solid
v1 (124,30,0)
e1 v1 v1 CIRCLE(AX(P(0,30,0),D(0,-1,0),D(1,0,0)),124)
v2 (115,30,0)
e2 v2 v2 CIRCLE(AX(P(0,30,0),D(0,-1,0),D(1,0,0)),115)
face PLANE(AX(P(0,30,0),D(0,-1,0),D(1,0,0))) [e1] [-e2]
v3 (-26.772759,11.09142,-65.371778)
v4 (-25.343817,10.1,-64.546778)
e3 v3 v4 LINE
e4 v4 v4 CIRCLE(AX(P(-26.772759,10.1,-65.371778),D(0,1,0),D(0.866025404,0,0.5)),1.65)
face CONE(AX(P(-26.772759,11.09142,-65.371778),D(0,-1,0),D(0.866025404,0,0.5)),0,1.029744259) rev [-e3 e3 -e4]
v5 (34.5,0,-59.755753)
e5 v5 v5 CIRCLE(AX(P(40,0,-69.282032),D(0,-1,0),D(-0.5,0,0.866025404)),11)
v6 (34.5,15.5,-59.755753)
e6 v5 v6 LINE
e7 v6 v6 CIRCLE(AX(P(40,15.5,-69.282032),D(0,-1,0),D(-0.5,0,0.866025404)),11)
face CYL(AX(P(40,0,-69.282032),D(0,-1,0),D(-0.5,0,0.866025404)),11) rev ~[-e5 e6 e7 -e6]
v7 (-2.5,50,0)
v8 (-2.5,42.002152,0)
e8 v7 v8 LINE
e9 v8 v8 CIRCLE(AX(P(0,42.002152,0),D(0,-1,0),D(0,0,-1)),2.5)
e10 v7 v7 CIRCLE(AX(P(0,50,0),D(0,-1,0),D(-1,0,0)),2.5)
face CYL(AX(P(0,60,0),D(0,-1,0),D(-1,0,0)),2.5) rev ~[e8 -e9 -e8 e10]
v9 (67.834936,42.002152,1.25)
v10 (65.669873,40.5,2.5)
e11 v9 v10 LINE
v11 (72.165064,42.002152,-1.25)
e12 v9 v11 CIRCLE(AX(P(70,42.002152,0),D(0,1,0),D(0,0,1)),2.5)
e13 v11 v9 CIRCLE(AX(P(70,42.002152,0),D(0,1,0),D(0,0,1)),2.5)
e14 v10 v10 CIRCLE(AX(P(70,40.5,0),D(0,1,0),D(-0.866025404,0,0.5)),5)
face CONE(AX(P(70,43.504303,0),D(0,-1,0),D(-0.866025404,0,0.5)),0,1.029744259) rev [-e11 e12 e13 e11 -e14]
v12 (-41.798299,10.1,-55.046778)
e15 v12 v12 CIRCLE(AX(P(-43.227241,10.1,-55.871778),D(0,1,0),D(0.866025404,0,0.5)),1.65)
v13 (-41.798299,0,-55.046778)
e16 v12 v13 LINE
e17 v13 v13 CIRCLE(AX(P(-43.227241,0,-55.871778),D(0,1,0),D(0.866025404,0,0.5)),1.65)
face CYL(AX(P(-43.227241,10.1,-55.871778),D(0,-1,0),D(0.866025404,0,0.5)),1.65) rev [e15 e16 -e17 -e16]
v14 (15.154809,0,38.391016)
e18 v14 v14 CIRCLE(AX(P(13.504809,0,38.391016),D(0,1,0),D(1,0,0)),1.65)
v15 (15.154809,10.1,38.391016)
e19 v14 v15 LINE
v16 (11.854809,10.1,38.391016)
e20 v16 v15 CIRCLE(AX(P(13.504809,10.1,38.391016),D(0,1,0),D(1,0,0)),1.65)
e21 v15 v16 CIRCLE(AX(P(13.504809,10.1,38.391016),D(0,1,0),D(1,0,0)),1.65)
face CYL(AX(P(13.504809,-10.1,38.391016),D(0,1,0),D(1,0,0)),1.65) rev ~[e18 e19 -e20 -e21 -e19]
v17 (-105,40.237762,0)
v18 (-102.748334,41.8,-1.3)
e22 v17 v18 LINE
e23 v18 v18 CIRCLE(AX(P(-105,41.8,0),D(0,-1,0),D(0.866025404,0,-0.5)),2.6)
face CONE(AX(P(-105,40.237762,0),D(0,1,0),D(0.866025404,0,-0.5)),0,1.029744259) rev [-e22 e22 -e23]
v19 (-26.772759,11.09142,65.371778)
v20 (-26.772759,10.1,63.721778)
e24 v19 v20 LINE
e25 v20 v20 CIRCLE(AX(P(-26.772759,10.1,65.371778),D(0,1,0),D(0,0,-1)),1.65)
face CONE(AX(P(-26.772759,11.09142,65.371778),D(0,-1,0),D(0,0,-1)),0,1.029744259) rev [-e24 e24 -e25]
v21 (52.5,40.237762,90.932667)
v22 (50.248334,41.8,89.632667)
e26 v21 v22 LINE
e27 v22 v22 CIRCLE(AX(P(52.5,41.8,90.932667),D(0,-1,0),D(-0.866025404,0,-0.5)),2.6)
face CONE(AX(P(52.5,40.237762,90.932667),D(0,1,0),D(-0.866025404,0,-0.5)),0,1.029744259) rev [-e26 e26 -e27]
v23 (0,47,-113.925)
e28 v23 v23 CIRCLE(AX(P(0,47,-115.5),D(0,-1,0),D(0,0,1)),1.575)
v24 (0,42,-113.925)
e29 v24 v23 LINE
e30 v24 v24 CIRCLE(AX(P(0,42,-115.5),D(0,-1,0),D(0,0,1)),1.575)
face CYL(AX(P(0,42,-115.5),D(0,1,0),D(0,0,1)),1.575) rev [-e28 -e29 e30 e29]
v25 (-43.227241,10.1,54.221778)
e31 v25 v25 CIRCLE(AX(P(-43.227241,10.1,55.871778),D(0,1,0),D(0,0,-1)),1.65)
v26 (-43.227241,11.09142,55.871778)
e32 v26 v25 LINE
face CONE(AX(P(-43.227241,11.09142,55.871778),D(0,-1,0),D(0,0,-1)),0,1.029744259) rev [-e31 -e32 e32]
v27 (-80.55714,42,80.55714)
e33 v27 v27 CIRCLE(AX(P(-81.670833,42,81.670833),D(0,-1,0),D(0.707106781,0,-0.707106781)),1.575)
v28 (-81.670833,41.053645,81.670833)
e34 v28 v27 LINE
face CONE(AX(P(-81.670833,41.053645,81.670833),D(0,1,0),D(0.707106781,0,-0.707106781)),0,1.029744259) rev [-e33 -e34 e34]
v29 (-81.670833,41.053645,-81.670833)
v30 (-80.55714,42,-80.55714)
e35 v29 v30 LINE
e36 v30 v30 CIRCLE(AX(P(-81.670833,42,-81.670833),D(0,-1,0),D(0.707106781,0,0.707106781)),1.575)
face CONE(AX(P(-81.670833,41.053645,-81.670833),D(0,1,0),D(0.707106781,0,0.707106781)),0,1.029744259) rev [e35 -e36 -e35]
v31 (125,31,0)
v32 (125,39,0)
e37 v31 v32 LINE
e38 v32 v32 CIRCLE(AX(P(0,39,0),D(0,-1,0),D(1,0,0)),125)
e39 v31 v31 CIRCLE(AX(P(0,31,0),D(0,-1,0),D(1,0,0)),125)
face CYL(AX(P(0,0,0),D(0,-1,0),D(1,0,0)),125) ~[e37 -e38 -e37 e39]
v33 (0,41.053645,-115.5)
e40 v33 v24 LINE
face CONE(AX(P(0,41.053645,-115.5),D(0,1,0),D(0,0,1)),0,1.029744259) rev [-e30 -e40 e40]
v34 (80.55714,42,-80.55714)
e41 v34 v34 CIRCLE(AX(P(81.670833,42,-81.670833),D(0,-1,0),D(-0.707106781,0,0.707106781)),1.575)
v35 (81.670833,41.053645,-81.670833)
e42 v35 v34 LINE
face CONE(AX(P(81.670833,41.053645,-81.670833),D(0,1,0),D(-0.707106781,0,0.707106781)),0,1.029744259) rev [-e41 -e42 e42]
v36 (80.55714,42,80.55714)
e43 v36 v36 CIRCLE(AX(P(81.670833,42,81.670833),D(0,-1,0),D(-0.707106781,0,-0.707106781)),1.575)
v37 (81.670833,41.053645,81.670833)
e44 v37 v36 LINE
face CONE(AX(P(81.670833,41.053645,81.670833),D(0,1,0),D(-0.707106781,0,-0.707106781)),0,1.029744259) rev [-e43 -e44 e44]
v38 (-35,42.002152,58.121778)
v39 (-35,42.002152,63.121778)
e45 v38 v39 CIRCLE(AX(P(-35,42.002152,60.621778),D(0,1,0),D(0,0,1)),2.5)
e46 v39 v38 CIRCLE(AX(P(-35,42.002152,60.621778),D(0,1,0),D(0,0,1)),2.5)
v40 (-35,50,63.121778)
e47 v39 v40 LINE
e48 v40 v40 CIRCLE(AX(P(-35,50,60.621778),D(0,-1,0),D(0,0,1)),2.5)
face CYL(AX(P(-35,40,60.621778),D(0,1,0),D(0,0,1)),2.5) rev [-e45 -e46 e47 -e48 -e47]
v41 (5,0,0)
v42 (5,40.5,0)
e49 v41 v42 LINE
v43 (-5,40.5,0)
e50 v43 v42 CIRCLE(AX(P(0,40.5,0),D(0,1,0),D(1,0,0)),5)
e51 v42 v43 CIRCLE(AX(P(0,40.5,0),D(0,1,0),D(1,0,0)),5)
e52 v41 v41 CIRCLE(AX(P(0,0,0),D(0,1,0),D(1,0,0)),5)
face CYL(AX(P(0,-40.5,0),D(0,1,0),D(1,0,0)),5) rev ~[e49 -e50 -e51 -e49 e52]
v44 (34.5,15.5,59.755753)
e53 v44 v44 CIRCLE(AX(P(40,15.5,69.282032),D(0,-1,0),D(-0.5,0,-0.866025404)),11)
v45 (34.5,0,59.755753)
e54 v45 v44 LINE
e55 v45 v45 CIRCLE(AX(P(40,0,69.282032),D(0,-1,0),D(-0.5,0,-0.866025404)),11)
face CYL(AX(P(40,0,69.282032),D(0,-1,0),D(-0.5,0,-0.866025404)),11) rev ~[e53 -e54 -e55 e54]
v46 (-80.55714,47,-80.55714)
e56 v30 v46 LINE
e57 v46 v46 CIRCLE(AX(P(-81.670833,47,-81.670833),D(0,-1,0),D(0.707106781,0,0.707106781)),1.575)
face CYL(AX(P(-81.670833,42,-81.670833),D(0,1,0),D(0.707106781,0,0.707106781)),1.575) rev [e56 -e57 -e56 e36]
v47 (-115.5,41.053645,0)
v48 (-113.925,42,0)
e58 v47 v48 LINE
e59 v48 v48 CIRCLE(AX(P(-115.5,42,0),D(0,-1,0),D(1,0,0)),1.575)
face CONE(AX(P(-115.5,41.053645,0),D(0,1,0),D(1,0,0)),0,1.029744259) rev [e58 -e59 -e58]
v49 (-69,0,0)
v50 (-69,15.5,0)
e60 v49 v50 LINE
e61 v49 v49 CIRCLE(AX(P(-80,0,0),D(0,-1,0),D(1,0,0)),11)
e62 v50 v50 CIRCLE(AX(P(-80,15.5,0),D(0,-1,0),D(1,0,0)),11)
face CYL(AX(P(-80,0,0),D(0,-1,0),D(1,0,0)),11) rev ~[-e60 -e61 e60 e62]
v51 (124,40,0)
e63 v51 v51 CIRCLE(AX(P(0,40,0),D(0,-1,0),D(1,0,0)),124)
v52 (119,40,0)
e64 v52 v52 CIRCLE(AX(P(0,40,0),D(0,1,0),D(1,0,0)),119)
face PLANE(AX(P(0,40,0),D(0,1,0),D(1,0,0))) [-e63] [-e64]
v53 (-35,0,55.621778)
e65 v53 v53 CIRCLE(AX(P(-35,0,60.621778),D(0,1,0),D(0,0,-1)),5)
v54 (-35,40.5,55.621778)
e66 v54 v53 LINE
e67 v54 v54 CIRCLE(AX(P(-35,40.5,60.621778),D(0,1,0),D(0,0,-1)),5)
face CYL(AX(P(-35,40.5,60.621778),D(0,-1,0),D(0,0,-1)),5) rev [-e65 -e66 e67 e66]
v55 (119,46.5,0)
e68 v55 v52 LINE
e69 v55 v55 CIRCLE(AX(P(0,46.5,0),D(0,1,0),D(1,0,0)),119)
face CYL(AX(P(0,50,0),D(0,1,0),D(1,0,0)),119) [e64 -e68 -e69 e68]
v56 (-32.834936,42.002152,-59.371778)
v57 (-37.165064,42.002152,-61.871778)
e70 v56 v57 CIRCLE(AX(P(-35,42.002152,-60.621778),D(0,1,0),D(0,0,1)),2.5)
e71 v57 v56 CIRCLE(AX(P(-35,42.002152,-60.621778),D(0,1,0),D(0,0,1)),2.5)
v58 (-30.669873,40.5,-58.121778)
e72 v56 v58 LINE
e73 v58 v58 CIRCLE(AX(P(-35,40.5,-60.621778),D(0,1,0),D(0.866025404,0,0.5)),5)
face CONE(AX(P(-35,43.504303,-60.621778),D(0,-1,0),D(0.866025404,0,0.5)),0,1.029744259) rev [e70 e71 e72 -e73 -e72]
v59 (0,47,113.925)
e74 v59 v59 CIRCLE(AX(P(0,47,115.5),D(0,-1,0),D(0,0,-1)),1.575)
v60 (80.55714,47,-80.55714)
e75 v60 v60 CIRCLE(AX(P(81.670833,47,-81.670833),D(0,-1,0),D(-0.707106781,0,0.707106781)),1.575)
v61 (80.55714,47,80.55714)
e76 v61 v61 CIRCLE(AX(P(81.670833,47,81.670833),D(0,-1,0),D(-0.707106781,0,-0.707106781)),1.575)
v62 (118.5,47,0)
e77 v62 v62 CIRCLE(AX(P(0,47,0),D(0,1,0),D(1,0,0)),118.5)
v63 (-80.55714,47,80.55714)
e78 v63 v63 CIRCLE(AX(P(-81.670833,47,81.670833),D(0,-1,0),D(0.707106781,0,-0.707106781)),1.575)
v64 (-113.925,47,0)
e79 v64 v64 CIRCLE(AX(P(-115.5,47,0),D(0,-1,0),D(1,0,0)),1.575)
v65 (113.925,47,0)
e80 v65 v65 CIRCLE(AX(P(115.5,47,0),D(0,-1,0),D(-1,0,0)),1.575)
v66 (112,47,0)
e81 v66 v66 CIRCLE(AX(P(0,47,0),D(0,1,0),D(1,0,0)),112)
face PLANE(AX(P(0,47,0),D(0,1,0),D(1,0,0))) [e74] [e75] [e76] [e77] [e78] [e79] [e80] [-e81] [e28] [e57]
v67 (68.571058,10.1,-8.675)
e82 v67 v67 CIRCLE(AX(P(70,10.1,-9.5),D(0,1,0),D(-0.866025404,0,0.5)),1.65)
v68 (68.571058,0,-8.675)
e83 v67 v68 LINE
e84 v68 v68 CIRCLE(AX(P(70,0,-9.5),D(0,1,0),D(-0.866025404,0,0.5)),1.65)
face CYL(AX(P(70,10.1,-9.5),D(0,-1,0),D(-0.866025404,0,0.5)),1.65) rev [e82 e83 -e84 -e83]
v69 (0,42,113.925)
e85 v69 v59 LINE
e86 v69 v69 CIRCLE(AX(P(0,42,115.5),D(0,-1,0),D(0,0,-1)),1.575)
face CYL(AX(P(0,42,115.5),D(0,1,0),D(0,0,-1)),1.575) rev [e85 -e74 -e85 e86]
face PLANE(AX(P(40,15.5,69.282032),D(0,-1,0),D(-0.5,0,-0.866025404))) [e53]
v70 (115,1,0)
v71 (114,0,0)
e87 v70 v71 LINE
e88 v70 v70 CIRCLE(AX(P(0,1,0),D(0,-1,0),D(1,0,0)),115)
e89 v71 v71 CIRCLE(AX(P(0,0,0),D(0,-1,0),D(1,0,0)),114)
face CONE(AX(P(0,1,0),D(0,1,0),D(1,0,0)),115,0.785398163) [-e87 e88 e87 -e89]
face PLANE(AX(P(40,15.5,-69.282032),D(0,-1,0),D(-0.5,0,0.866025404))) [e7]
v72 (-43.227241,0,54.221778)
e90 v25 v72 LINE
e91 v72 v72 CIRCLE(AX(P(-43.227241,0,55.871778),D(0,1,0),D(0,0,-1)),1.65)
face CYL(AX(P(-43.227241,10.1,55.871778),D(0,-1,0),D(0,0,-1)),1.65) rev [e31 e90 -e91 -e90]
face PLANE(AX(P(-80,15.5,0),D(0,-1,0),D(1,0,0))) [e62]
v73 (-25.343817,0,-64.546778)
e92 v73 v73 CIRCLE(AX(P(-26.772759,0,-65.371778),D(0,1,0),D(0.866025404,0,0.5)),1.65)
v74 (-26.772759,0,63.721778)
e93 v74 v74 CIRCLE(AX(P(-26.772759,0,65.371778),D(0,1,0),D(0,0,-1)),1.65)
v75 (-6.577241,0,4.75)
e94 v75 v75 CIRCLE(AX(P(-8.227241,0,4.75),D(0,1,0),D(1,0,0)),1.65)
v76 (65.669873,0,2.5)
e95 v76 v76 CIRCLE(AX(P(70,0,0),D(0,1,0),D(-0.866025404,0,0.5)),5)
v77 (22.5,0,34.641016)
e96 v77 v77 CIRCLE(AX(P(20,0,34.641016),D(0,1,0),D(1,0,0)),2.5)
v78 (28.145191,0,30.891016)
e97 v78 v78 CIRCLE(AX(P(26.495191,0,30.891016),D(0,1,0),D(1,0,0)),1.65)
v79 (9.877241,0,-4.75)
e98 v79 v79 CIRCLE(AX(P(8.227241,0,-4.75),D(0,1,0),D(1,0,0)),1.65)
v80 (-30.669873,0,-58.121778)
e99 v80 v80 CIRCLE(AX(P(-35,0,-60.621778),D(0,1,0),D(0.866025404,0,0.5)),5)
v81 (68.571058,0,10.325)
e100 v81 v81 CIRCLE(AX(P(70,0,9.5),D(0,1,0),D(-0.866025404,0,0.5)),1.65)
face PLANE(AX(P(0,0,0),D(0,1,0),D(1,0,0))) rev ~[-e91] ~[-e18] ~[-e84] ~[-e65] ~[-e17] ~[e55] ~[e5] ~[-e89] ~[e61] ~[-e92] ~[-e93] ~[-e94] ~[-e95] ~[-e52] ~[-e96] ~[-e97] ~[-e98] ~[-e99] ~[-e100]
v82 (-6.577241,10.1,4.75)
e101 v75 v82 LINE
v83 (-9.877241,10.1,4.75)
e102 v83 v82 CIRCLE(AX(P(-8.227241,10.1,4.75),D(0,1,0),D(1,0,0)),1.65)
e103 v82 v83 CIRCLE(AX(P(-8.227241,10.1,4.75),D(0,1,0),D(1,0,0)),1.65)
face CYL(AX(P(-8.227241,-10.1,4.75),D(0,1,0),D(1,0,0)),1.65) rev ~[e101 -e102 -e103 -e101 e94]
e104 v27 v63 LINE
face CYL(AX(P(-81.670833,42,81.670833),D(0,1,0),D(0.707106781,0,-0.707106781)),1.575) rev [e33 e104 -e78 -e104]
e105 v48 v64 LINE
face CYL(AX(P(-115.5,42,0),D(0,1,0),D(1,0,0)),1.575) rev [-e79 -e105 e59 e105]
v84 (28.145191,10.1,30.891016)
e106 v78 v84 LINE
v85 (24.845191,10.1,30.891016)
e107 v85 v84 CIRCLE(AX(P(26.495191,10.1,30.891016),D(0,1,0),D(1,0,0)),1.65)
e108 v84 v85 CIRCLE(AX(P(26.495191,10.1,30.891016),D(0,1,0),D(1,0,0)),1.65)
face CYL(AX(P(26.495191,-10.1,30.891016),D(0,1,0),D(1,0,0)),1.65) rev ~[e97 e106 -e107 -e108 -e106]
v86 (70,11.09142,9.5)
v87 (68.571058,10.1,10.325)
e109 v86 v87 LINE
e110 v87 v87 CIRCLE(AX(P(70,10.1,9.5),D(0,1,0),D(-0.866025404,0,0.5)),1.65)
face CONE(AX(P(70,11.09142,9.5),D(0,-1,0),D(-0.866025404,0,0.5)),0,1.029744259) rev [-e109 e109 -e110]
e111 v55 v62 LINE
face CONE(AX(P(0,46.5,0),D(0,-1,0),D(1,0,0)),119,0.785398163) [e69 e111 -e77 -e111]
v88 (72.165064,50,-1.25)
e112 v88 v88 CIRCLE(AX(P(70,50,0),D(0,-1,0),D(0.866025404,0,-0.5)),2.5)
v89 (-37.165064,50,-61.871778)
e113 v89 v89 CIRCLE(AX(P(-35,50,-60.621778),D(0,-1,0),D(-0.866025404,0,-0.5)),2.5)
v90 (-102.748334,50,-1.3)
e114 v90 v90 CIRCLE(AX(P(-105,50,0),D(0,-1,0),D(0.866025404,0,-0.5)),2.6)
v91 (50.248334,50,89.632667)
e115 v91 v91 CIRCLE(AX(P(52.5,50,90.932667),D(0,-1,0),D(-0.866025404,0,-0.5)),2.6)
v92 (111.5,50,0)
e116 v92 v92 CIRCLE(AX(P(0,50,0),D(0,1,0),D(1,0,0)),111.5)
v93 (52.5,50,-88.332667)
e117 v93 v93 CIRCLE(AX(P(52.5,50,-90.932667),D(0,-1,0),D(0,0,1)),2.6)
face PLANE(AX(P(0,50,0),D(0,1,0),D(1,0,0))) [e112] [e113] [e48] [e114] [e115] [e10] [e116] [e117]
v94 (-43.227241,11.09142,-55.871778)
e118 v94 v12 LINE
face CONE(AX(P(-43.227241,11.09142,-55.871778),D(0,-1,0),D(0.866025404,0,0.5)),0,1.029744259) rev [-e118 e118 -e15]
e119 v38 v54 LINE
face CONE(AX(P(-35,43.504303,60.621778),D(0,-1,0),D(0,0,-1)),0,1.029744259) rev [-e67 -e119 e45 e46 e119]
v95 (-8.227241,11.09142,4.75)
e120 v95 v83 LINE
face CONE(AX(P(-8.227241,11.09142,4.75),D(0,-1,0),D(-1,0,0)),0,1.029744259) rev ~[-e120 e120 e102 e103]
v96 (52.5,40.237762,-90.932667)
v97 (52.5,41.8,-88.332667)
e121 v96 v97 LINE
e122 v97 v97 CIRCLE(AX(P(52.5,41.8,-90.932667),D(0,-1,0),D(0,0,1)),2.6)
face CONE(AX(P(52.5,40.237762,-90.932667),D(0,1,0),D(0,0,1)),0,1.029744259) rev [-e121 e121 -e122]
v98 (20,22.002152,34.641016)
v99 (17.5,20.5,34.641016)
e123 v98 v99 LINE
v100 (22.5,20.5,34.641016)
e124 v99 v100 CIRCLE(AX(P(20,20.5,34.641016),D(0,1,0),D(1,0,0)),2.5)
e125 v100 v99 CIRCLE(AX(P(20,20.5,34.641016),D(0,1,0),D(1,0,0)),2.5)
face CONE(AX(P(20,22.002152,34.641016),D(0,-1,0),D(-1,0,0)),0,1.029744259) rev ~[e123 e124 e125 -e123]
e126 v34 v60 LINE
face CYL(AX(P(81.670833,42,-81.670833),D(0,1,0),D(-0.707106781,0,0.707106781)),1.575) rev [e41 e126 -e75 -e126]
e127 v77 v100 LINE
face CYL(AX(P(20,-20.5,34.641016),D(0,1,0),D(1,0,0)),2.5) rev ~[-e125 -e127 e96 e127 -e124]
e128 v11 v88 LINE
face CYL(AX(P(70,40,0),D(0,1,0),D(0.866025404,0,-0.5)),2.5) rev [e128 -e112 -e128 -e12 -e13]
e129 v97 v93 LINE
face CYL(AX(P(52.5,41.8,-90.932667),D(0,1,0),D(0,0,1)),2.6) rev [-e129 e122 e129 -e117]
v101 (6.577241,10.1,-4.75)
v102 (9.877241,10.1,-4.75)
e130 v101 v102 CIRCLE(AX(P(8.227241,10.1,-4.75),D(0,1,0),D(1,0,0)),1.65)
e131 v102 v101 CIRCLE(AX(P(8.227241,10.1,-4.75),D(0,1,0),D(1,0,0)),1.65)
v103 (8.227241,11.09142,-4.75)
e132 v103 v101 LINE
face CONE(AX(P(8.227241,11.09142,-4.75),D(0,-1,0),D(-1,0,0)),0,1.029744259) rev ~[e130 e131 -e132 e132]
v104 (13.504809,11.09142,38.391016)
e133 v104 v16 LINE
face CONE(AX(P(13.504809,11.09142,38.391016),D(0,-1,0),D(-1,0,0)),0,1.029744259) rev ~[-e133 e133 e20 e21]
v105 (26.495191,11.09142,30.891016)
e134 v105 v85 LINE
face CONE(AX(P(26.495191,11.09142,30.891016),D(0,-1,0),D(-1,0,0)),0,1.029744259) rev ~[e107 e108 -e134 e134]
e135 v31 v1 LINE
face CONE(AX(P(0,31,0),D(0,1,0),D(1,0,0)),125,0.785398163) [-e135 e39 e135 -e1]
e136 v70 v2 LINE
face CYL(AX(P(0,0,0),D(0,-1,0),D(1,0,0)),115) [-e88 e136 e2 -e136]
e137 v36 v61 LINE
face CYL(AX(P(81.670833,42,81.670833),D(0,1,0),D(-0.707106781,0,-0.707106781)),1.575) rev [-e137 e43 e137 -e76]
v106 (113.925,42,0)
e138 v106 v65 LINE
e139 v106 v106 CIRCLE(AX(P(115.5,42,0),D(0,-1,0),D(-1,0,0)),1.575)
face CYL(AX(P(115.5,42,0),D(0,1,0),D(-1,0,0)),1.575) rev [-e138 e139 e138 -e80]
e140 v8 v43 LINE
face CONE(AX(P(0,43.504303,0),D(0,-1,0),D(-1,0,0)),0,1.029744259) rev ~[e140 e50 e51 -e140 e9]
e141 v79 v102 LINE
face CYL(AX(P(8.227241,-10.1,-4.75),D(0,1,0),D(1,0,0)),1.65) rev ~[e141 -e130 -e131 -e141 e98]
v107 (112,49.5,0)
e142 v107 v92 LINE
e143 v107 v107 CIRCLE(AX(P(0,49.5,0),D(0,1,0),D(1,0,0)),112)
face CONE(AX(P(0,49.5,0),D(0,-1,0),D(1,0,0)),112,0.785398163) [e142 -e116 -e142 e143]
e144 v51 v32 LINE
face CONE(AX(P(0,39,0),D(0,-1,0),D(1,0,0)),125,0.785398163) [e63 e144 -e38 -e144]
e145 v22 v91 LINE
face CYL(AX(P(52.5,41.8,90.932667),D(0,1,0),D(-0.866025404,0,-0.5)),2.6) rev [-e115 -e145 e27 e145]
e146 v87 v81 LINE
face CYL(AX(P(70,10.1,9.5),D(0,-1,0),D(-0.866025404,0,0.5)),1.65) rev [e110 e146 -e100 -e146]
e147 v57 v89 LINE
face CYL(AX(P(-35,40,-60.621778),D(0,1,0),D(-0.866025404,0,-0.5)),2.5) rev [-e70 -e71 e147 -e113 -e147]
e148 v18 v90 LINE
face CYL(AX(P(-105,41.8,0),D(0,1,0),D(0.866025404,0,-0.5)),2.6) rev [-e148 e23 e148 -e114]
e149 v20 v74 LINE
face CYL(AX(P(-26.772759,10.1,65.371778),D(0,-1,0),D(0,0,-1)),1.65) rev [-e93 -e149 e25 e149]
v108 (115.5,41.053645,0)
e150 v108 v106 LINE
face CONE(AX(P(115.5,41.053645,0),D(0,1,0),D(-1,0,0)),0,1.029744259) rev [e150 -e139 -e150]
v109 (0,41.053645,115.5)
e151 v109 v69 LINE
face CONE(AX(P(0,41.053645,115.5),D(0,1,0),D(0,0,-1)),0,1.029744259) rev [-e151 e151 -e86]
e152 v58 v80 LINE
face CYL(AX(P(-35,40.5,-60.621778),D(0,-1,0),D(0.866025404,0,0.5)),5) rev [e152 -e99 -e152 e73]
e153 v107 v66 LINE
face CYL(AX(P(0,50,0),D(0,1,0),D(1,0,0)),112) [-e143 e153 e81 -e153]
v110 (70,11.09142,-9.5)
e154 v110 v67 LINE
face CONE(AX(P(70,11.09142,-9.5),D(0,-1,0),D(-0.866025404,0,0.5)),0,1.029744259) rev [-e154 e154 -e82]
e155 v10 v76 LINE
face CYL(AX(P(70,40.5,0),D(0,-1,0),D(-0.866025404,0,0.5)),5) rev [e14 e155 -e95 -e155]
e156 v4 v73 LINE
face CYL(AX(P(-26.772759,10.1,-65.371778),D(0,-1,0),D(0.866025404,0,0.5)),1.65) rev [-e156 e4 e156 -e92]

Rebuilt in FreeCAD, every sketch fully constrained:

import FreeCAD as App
import Part
import Sketcher
Q = App.Units.Quantity


def edges_at(feature, points):
    """Names of the edges that pass closest to the given points."""
    edges = feature.Shape.Edges
    near = lambda p: min(range(len(edges)), key=lambda i: edges[i].distToShape(Part.Vertex(*p))[0])
    return sorted({f"Edge{near(p) + 1}" for p in points})

doc = App.newDocument("Part")
body = doc.addObject("PartDesign::Body", "Body")

# Sketch on XZ plane
sketch1 = body.newObject("Sketcher::SketchObject", "Sketch")
sketch1.AttachmentSupport = (doc.getObject("XZ_Plane"), [""])
sketch1.MapMode = "FlatFace"
sketch1.addGeometry(Part.Circle(App.Vector(0, 0, 0), App.Vector(0, 0, 1), 125), False)
sketch1.addConstraint(Sketcher.Constraint("Coincident", 0, 3, -1, 1))
sketch1.addConstraint(Sketcher.Constraint("Diameter", 0, 250.0))
pad1 = body.newObject("PartDesign::Pad", "Pad")
pad1.Profile = sketch1
pad1.Length = 50
pad1.Reversed = True

# Sketch on XZ plane
sketch2 = body.newObject("Sketcher::SketchObject", "Sketch001")
sketch2.AttachmentSupport = (doc.getObject("XZ_Plane"), [""])
sketch2.MapMode = "FlatFace"
sketch2.AttachmentOffset = App.Placement(App.Vector(0, 0, -50), App.Rotation())
sketch2.addGeometry(Part.Circle(App.Vector(0, 0, 0), App.Vector(0, 0, 1), 127), False)
sketch2.addGeometry(Part.Circle(App.Vector(0, 0, 0), App.Vector(0, 0, 1), 119), False)
sketch2.addConstraint(Sketcher.Constraint("Coincident", 0, 3, -1, 1))
sketch2.addConstraint(Sketcher.Constraint("Coincident", 1, 3, -1, 1))
sketch2.addConstraint(Sketcher.Constraint("Diameter", 0, 254.0))
sketch2.addConstraint(Sketcher.Constraint("Diameter", 1, 238.0))
pocket1 = body.newObject("PartDesign::Pocket", "Pocket")
pocket1.Profile = sketch2
pocket1.Length = 10
pocket1.Reversed = True

# Sketch on XZ plane
sketch3 = body.newObject("Sketcher::SketchObject", "Sketch002")
sketch3.AttachmentSupport = (doc.getObject("XZ_Plane"), [""])
sketch3.MapMode = "FlatFace"
sketch3.AttachmentOffset = App.Placement(App.Vector(0, 0, -50), App.Rotation())
sketch3.addGeometry(Part.Circle(App.Vector(0, 0, 0), App.Vector(0, 0, 1), 125), False)
sketch3.addGeometry(Part.Circle(App.Vector(0, 0, 0), App.Vector(0, 0, 1), 112), False)
sketch3.addConstraint(Sketcher.Constraint("Coincident", 0, 3, -1, 1))
sketch3.addConstraint(Sketcher.Constraint("Coincident", 1, 3, -1, 1))
sketch3.addConstraint(Sketcher.Constraint("Diameter", 0, 250.0))
sketch3.addConstraint(Sketcher.Constraint("Diameter", 1, 224.0))
pocket2 = body.newObject("PartDesign::Pocket", "Pocket001")
pocket2.Profile = sketch3
pocket2.Length = 3
pocket2.Reversed = True

# Sketch on XZ plane
sketch4 = body.newObject("Sketcher::SketchObject", "Sketch003")
sketch4.AttachmentSupport = (doc.getObject("XZ_Plane"), [""])
sketch4.MapMode = "FlatFace"
sketch4.addGeometry(Part.Circle(App.Vector(0, 0, 0), App.Vector(0, 0, 1), 135), False)
sketch4.addGeometry(Part.Circle(App.Vector(0, 0, 0), App.Vector(0, 0, 1), 115), False)
sketch4.addConstraint(Sketcher.Constraint("Coincident", 0, 3, -1, 1))
sketch4.addConstraint(Sketcher.Constraint("Coincident", 1, 3, -1, 1))
sketch4.addConstraint(Sketcher.Constraint("Diameter", 0, 270.0))
sketch4.addConstraint(Sketcher.Constraint("Diameter", 1, 230.0))
pocket3 = body.newObject("PartDesign::Pocket", "Pocket002")
pocket3.Profile = sketch4
pocket3.Length = 30
doc.recompute()

chamfer = body.newObject("PartDesign::Chamfer", "Chamfer")
chamfer.Base = (pocket3, edges_at(pocket3, [(-119, 47, 0), (-112, 50, 0)]))
chamfer.Size = 0.5

# Sketch on YZ plane
sketch5 = body.newObject("Sketcher::SketchObject", "Sketch004")
sketch5.AttachmentSupport = (doc.getObject("YZ_Plane"), [""])
sketch5.MapMode = "FlatFace"
sketch5.addGeometry(Part.LineSegment(App.Vector(41.1, -115.5, 0), App.Vector(47, -115.5, 0)), False)
sketch5.addGeometry(Part.LineSegment(App.Vector(47, -115.5, 0), App.Vector(47, -113.9, 0)), False)
sketch5.addGeometry(Part.LineSegment(App.Vector(47, -113.9, 0), App.Vector(42, -113.9, 0)), False)
sketch5.addGeometry(Part.LineSegment(App.Vector(42, -113.9, 0), App.Vector(41.1, -115.5, 0)), False)
sketch5.addGeometry(Part.LineSegment(App.Vector(47, -115.5, 0), App.Vector(41.1, -115.5, 0)), True)  # axis
sketch5.addConstraint(Sketcher.Constraint("Coincident", 0, 2, 1, 1))
sketch5.addConstraint(Sketcher.Constraint("Coincident", 1, 2, 2, 1))
sketch5.addConstraint(Sketcher.Constraint("Coincident", 2, 2, 3, 1))
sketch5.addConstraint(Sketcher.Constraint("Coincident", 3, 2, 0, 1))
sketch5.addConstraint(Sketcher.Constraint("Horizontal", 0))
sketch5.addConstraint(Sketcher.Constraint("Vertical", 1))
sketch5.addConstraint(Sketcher.Constraint("Horizontal", 2))
sketch5.addConstraint(Sketcher.Constraint("Horizontal", 4))
sketch5.addConstraint(Sketcher.Constraint("Coincident", 4, 1, 0, 2))
sketch5.addConstraint(Sketcher.Constraint("Equal", 0, 4))
sketch5.addConstraint(Sketcher.Constraint("DistanceX", 2, 2, 2, 1, 5.0))
sketch5.addConstraint(Sketcher.Constraint("Angle", 3, Q("-121 deg")))
sketch5.addConstraint(Sketcher.Constraint("DistanceX", -1, 1, 0, 2, 47.0))
sketch5.addConstraint(Sketcher.Constraint("DistanceY", 0, 2, -1, 1, 115.5))
sketch5.addConstraint(Sketcher.Constraint("DistanceY", 1, 1, 1, 2, 1.575))
groove = body.newObject("PartDesign::Groove", "Groove")
groove.Profile = sketch5
groove.ReferenceAxis = (sketch5, ["Axis0"])
groove.Angle = 360
doc.recompute()

polarpattern = body.newObject("PartDesign::PolarPattern", "PolarPattern")
polarpattern.Originals = [groove]
polarpattern.Axis = (doc.getObject("Y_Axis"), [""])
polarpattern.Angle = 360
polarpattern.Occurrences = 8
body.Tip = polarpattern

# Sketch on XZ plane
sketch6 = body.newObject("Sketcher::SketchObject", "Sketch005")
sketch6.AttachmentSupport = (doc.getObject("XZ_Plane"), [""])
sketch6.MapMode = "FlatFace"
sketch6.addGeometry(Part.Circle(App.Vector(-80, 0, 0), App.Vector(0, 0, 1), 11), False)
sketch6.addConstraint(Sketcher.Constraint("PointOnObject", 0, 3, -1))
sketch6.addConstraint(Sketcher.Constraint("Diameter", 0, 22.0))
sketch6.addConstraint(Sketcher.Constraint("DistanceX", 0, 3, -1, 1, 80.0))
pocket4 = body.newObject("PartDesign::Pocket", "Pocket003")
pocket4.Profile = sketch6
pocket4.Length = 15.5
doc.recompute()

polarpattern2 = body.newObject("PartDesign::PolarPattern", "PolarPattern001")
polarpattern2.Originals = [pocket4]
polarpattern2.Axis = (doc.getObject("Y_Axis"), [""])
polarpattern2.Angle = 360
polarpattern2.Occurrences = 3
body.Tip = polarpattern2

# Sketch on YZ plane
sketch7 = body.newObject("Sketcher::SketchObject", "Sketch006")
sketch7.AttachmentSupport = (doc.getObject("YZ_Plane"), [""])
sketch7.MapMode = "FlatFace"
sketch7.AttachmentOffset = App.Placement(App.Vector(0, 0, -35), App.Rotation())
sketch7.addGeometry(Part.LineSegment(App.Vector(44, 61, 0), App.Vector(0, 61, 0)), False)
sketch7.addGeometry(Part.LineSegment(App.Vector(0, 61, 0), App.Vector(0, 56, 0)), False)
sketch7.addGeometry(Part.LineSegment(App.Vector(0, 56, 0), App.Vector(40, 56, 0)), False)
sketch7.addGeometry(Part.LineSegment(App.Vector(40, 56, 0), App.Vector(44, 61, 0)), False)
sketch7.addGeometry(Part.LineSegment(App.Vector(0, 61, 0), App.Vector(44, 61, 0)), True)  # axis
sketch7.addConstraint(Sketcher.Constraint("Coincident", 0, 2, 1, 1))
sketch7.addConstraint(Sketcher.Constraint("Coincident", 1, 2, 2, 1))
sketch7.addConstraint(Sketcher.Constraint("Coincident", 2, 2, 3, 1))
sketch7.addConstraint(Sketcher.Constraint("Coincident", 3, 2, 0, 1))
sketch7.addConstraint(Sketcher.Constraint("Horizontal", 0))
sketch7.addConstraint(Sketcher.Constraint("Vertical", 1))
sketch7.addConstraint(Sketcher.Constraint("Horizontal", 2))
sketch7.addConstraint(Sketcher.Constraint("Horizontal", 4))
sketch7.addConstraint(Sketcher.Constraint("Coincident", 4, 1, 0, 2))
sketch7.addConstraint(Sketcher.Constraint("PointOnObject", 0, 2, -2))
sketch7.addConstraint(Sketcher.Constraint("Equal", 0, 4))
sketch7.addConstraint(Sketcher.Constraint("DistanceY", 1, 2, 1, 1, 5.0))
sketch7.addConstraint(Sketcher.Constraint("Angle", 3, Q("59 deg")))
sketch7.addConstraint(Sketcher.Constraint("DistanceX", 2, 1, 2, 2, 40.5))
sketch7.addConstraint(Sketcher.Constraint("DistanceY", -1, 1, 0, 2, 60.621778))
groove2 = body.newObject("PartDesign::Groove", "Groove001")
groove2.Profile = sketch7
groove2.ReferenceAxis = (sketch7, ["Axis0"])
groove2.Angle = 360

# Sketch on XZ plane
sketch8 = body.newObject("Sketcher::SketchObject", "Sketch007")
sketch8.AttachmentSupport = (doc.getObject("XZ_Plane"), [""])
sketch8.MapMode = "FlatFace"
sketch8.addGeometry(Part.Circle(App.Vector(0, 0, 0), App.Vector(0, 0, 1), 5), False)
sketch8.addConstraint(Sketcher.Constraint("Coincident", 0, 3, -1, 1))
sketch8.addConstraint(Sketcher.Constraint("Diameter", 0, 10.0))
doc.recompute()
hole = body.newObject("PartDesign::Hole", "Hole")
hole.Profile = sketch8
hole.ThreadType = "None"
hole.Diameter = 10
hole.DepthType = "Dimension"
hole.Depth = 40.5
hole.DrillPoint = "Angled"
hole.DrillPointAngle = 118

# Sketch on YZ plane
sketch9 = body.newObject("Sketcher::SketchObject", "Sketch008")
sketch9.AttachmentSupport = (doc.getObject("YZ_Plane"), [""])
sketch9.MapMode = "FlatFace"
sketch9.AttachmentOffset = App.Placement(App.Vector(0, 0, -35), App.Rotation())
sketch9.addGeometry(Part.LineSegment(App.Vector(38.5, 60.6, 0), App.Vector(50, 60.6, 0)), False)
sketch9.addGeometry(Part.LineSegment(App.Vector(50, 60.6, 0), App.Vector(50, 63.1, 0)), False)
sketch9.addGeometry(Part.LineSegment(App.Vector(50, 63.1, 0), App.Vector(40, 63.1, 0)), False)
sketch9.addGeometry(Part.LineSegment(App.Vector(40, 63.1, 0), App.Vector(38.5, 60.6, 0)), False)
sketch9.addGeometry(Part.LineSegment(App.Vector(50, 60.6, 0), App.Vector(38.5, 60.6, 0)), True)  # axis
sketch9.addConstraint(Sketcher.Constraint("Coincident", 0, 2, 1, 1))
sketch9.addConstraint(Sketcher.Constraint("Coincident", 1, 2, 2, 1))
sketch9.addConstraint(Sketcher.Constraint("Coincident", 2, 2, 3, 1))
sketch9.addConstraint(Sketcher.Constraint("Coincident", 3, 2, 0, 1))
sketch9.addConstraint(Sketcher.Constraint("Horizontal", 0))
sketch9.addConstraint(Sketcher.Constraint("Vertical", 1))
sketch9.addConstraint(Sketcher.Constraint("Horizontal", 2))
sketch9.addConstraint(Sketcher.Constraint("Horizontal", 4))
sketch9.addConstraint(Sketcher.Constraint("Coincident", 4, 1, 0, 2))
sketch9.addConstraint(Sketcher.Constraint("Equal", 0, 4))
sketch9.addConstraint(Sketcher.Constraint("DistanceX", 2, 2, 2, 1, 10.0))
sketch9.addConstraint(Sketcher.Constraint("Angle", 3, Q("-121 deg")))
sketch9.addConstraint(Sketcher.Constraint("DistanceY", 1, 1, 1, 2, 2.5))
sketch9.addConstraint(Sketcher.Constraint("DistanceX", -1, 1, 0, 2, 50.0))
sketch9.addConstraint(Sketcher.Constraint("DistanceY", -1, 1, 0, 2, 60.621778))
groove3 = body.newObject("PartDesign::Groove", "Groove002")
groove3.Profile = sketch9
groove3.ReferenceAxis = (sketch9, ["Axis0"])
groove3.Angle = 360

# Sketch on XZ plane
sketch10 = body.newObject("Sketcher::SketchObject", "Sketch009")
sketch10.AttachmentSupport = (doc.getObject("XZ_Plane"), [""])
sketch10.MapMode = "FlatFace"
sketch10.AttachmentOffset = App.Placement(App.Vector(0, 0, -50), App.Rotation())
sketch10.addGeometry(Part.Circle(App.Vector(0, 0, 0), App.Vector(0, 0, 1), 2.5), False)
sketch10.addConstraint(Sketcher.Constraint("Coincident", 0, 3, -1, 1))
sketch10.addConstraint(Sketcher.Constraint("Diameter", 0, 5.0))
doc.recompute()
hole2 = body.newObject("PartDesign::Hole", "Hole001")
hole2.Profile = sketch10
hole2.ThreadType = "None"
hole2.Diameter = 5
hole2.DepthType = "Dimension"
hole2.Depth = 10
hole2.DrillPoint = "Angled"
hole2.DrillPointAngle = 118
hole2.Reversed = True

# Sketch on XZ plane
sketch11 = body.newObject("Sketcher::SketchObject", "Sketch010")
sketch11.AttachmentSupport = (doc.getObject("XZ_Plane"), [""])
sketch11.MapMode = "FlatFace"
sketch11.addGeometry(Part.Circle(App.Vector(20, 34.6, 0), App.Vector(0, 0, 1), 2.5), False)
sketch11.addConstraint(Sketcher.Constraint("Diameter", 0, 5.0))
sketch11.addConstraint(Sketcher.Constraint("DistanceX", -1, 1, 0, 3, 20.0))
sketch11.addConstraint(Sketcher.Constraint("DistanceY", -1, 1, 0, 3, 34.641016))
doc.recompute()
hole3 = body.newObject("PartDesign::Hole", "Hole002")
hole3.Profile = sketch11
hole3.ThreadType = "None"
hole3.Diameter = 5
hole3.DepthType = "Dimension"
hole3.Depth = 20.5
hole3.DrillPoint = "Angled"
hole3.DrillPointAngle = 118

# Sketch on YZ plane
sketch12 = body.newObject("Sketcher::SketchObject", "Sketch011")
sketch12.AttachmentSupport = (doc.getObject("YZ_Plane"), [""])
sketch12.MapMode = "FlatFace"
sketch12.AttachmentOffset = App.Placement(App.Vector(0, 0, -43.227241), App.Rotation())
sketch12.addGeometry(Part.LineSegment(App.Vector(11.1, 55.9, 0), App.Vector(0, 55.9, 0)), False)
sketch12.addGeometry(Part.LineSegment(App.Vector(0, 55.9, 0), App.Vector(0, 54.2, 0)), False)
sketch12.addGeometry(Part.LineSegment(App.Vector(0, 54.2, 0), App.Vector(10.1, 54.2, 0)), False)
sketch12.addGeometry(Part.LineSegment(App.Vector(10.1, 54.2, 0), App.Vector(11.1, 55.9, 0)), False)
sketch12.addGeometry(Part.LineSegment(App.Vector(0, 55.9, 0), App.Vector(11.1, 55.9, 0)), True)  # axis
sketch12.addConstraint(Sketcher.Constraint("Coincident", 0, 2, 1, 1))
sketch12.addConstraint(Sketcher.Constraint("Coincident", 1, 2, 2, 1))
sketch12.addConstraint(Sketcher.Constraint("Coincident", 2, 2, 3, 1))
sketch12.addConstraint(Sketcher.Constraint("Coincident", 3, 2, 0, 1))
sketch12.addConstraint(Sketcher.Constraint("Horizontal", 0))
sketch12.addConstraint(Sketcher.Constraint("Vertical", 1))
sketch12.addConstraint(Sketcher.Constraint("Horizontal", 2))
sketch12.addConstraint(Sketcher.Constraint("Horizontal", 4))
sketch12.addConstraint(Sketcher.Constraint("Coincident", 4, 1, 0, 2))
sketch12.addConstraint(Sketcher.Constraint("PointOnObject", 0, 2, -2))
sketch12.addConstraint(Sketcher.Constraint("Equal", 0, 4))
sketch12.addConstraint(Sketcher.Constraint("Angle", 3, Q("59 deg")))
sketch12.addConstraint(Sketcher.Constraint("DistanceX", 2, 1, 2, 2, 10.1))
sketch12.addConstraint(Sketcher.Constraint("DistanceY", 1, 2, 1, 1, 1.65))
sketch12.addConstraint(Sketcher.Constraint("DistanceY", -1, 1, 0, 2, 55.871778))
groove4 = body.newObject("PartDesign::Groove", "Groove003")
groove4.Profile = sketch12
groove4.ReferenceAxis = (sketch12, ["Axis0"])
groove4.Angle = 360
doc.recompute()

datumline = body.newObject("PartDesign::Line", "DatumLine")
datumline.Placement = App.Placement(App.Vector(0, 0, 0), App.Rotation(App.Vector(0, 0, 1), App.Vector(0.866025404, 0, 0.5)))
linearpattern = body.newObject("PartDesign::LinearPattern", "LinearPattern")
linearpattern.Originals = [groove4]
linearpattern.Direction = (datumline, [""])
linearpattern.Mode = "offset"
linearpattern.Offset = 19
linearpattern.Occurrences = 2
body.Tip = linearpattern

# Sketch on XZ plane
sketch13 = body.newObject("Sketcher::SketchObject", "Sketch012")
sketch13.AttachmentSupport = (doc.getObject("XZ_Plane"), [""])
sketch13.MapMode = "FlatFace"
sketch13.addGeometry(Part.Circle(App.Vector(-8.2, 4.8, 0), App.Vector(0, 0, 1), 1.6), False)
sketch13.addGeometry(Part.Circle(App.Vector(8.2, -4.8, 0), App.Vector(0, 0, 1), 1.6), False)
sketch13.addConstraint(Sketcher.Constraint("Equal", 0, 1))
sketch13.addConstraint(Sketcher.Constraint("Symmetric", 0, 3, 1, 3, -1, 1))
sketch13.addConstraint(Sketcher.Constraint("Diameter", 0, 3.3))
sketch13.addConstraint(Sketcher.Constraint("DistanceY", 1, 3, 0, 3, 9.5))
sketch13.addConstraint(Sketcher.Constraint("DistanceX", 0, 3, -1, 1, 8.227241))
doc.recompute()
hole4 = body.newObject("PartDesign::Hole", "Hole003")
hole4.Profile = sketch13
hole4.ThreadType = "None"
hole4.Diameter = 3.3
hole4.DepthType = "Dimension"
hole4.Depth = 10.1
hole4.DrillPoint = "Angled"
hole4.DrillPointAngle = 118

# Sketch on XZ plane
sketch14 = body.newObject("Sketcher::SketchObject", "Sketch013")
sketch14.AttachmentSupport = (doc.getObject("XZ_Plane"), [""])
sketch14.MapMode = "FlatFace"
sketch14.addGeometry(Part.Circle(App.Vector(13.5, 38.4, 0), App.Vector(0, 0, 1), 1.6), False)
sketch14.addGeometry(Part.Circle(App.Vector(26.5, 30.9, 0), App.Vector(0, 0, 1), 1.6), False)
sketch14.addConstraint(Sketcher.Constraint("Equal", 0, 1))
sketch14.addConstraint(Sketcher.Constraint("Diameter", 0, 3.3))
sketch14.addConstraint(Sketcher.Constraint("DistanceY", 1, 3, 0, 3, 7.5))
sketch14.addConstraint(Sketcher.Constraint("DistanceX", -1, 1, 0, 3, 13.504809))
sketch14.addConstraint(Sketcher.Constraint("DistanceX", -1, 1, 1, 3, 26.495191))
sketch14.addConstraint(Sketcher.Constraint("DistanceY", -1, 1, 0, 3, 38.391016))
doc.recompute()
hole5 = body.newObject("PartDesign::Hole", "Hole004")
hole5.Profile = sketch14
hole5.ThreadType = "None"
hole5.Diameter = 3.3
hole5.DepthType = "Dimension"
hole5.Depth = 10.1
hole5.DrillPoint = "Angled"
hole5.DrillPointAngle = 118

# Sketch on YZ plane
sketch15 = body.newObject("Sketcher::SketchObject", "Sketch014")
sketch15.AttachmentSupport = (doc.getObject("YZ_Plane"), [""])
sketch15.MapMode = "FlatFace"
sketch15.AttachmentOffset = App.Placement(App.Vector(0, 0, 52.5), App.Rotation())
sketch15.addGeometry(Part.LineSegment(App.Vector(40.2, -90.9, 0), App.Vector(50, -90.9, 0)), False)
sketch15.addGeometry(Part.LineSegment(App.Vector(50, -90.9, 0), App.Vector(50, -88.3, 0)), False)
sketch15.addGeometry(Part.LineSegment(App.Vector(50, -88.3, 0), App.Vector(41.8, -88.3, 0)), False)
sketch15.addGeometry(Part.LineSegment(App.Vector(41.8, -88.3, 0), App.Vector(40.2, -90.9, 0)), False)
sketch15.addGeometry(Part.LineSegment(App.Vector(50, -90.9, 0), App.Vector(40.2, -90.9, 0)), True)  # axis
sketch15.addConstraint(Sketcher.Constraint("Coincident", 0, 2, 1, 1))
sketch15.addConstraint(Sketcher.Constraint("Coincident", 1, 2, 2, 1))
sketch15.addConstraint(Sketcher.Constraint("Coincident", 2, 2, 3, 1))
sketch15.addConstraint(Sketcher.Constraint("Coincident", 3, 2, 0, 1))
sketch15.addConstraint(Sketcher.Constraint("Horizontal", 0))
sketch15.addConstraint(Sketcher.Constraint("Vertical", 1))
sketch15.addConstraint(Sketcher.Constraint("Horizontal", 2))
sketch15.addConstraint(Sketcher.Constraint("Horizontal", 4))
sketch15.addConstraint(Sketcher.Constraint("Coincident", 4, 1, 0, 2))
sketch15.addConstraint(Sketcher.Constraint("Equal", 0, 4))
sketch15.addConstraint(Sketcher.Constraint("Angle", 3, Q("-121 deg")))
sketch15.addConstraint(Sketcher.Constraint("DistanceX", 2, 2, 2, 1, 8.2))
sketch15.addConstraint(Sketcher.Constraint("DistanceY", 1, 1, 1, 2, 2.6))
sketch15.addConstraint(Sketcher.Constraint("DistanceX", -1, 1, 0, 2, 50.0))
sketch15.addConstraint(Sketcher.Constraint("DistanceY", 0, 2, -1, 1, 90.932667))
groove5 = body.newObject("PartDesign::Groove", "Groove004")
groove5.Profile = sketch15
groove5.ReferenceAxis = (sketch15, ["Axis0"])
groove5.Angle = 360
doc.recompute()

polarpattern3 = body.newObject("PartDesign::PolarPattern", "PolarPattern002")
polarpattern3.Originals = [groove5]
polarpattern3.Axis = (doc.getObject("Y_Axis"), [""])
polarpattern3.Angle = 360
polarpattern3.Occurrences = 3
body.Tip = polarpattern3
doc.recompute()

polarpattern4 = body.newObject("PartDesign::PolarPattern", "PolarPattern003")
polarpattern4.Originals = [groove2, groove4, groove3]
polarpattern4.Axis = (doc.getObject("Y_Axis"), [""])
polarpattern4.Angle = 360
polarpattern4.Occurrences = 3
body.Tip = polarpattern4

# Sketch on an angled plane
sketch16 = body.newObject("Sketcher::SketchObject", "Sketch015")
sketch16.Placement = App.Placement(App.Vector(70, 0, -9.5), App.Rotation(App.Vector(-0.866025404, 0, 0.5), App.Vector(0, 1, 0), App.Vector(-0.5, 0, -0.866025404), "ZXY"))
sketch16.addGeometry(Part.LineSegment(App.Vector(0, 11.1, 0), App.Vector(0, 0, 0)), False)
sketch16.addGeometry(Part.LineSegment(App.Vector(0, 0, 0), App.Vector(1.7, 0, 0)), False)
sketch16.addGeometry(Part.LineSegment(App.Vector(1.7, 0, 0), App.Vector(1.7, 10.1, 0)), False)
sketch16.addGeometry(Part.LineSegment(App.Vector(1.7, 10.1, 0), App.Vector(0, 11.1, 0)), False)
sketch16.addConstraint(Sketcher.Constraint("Coincident", 0, 2, 1, 1))
sketch16.addConstraint(Sketcher.Constraint("Coincident", 1, 2, 2, 1))
sketch16.addConstraint(Sketcher.Constraint("Coincident", 2, 2, 3, 1))
sketch16.addConstraint(Sketcher.Constraint("Coincident", 3, 2, 0, 1))
sketch16.addConstraint(Sketcher.Constraint("Vertical", 0))
sketch16.addConstraint(Sketcher.Constraint("Horizontal", 1))
sketch16.addConstraint(Sketcher.Constraint("Vertical", 2))
sketch16.addConstraint(Sketcher.Constraint("Coincident", 0, 2, -1, 1))
sketch16.addConstraint(Sketcher.Constraint("Angle", 3, Q("149 deg")))
sketch16.addConstraint(Sketcher.Constraint("DistanceY", 2, 1, 2, 2, 10.1))
sketch16.addConstraint(Sketcher.Constraint("DistanceX", 1, 1, 1, 2, 1.65))
groove6 = body.newObject("PartDesign::Groove", "Groove005")
groove6.Profile = sketch16
groove6.ReferenceAxis = (sketch16, ["V_Axis"])
groove6.Angle = 360

# Sketch on an angled plane
sketch17 = body.newObject("Sketcher::SketchObject", "Sketch016")
sketch17.Placement = App.Placement(App.Vector(-43.227241, 0, -55.871778), App.Rotation(App.Vector(0.866025404, 0, 0.5), App.Vector(0, 1, 0), App.Vector(-0.5, 0, 0.866025404), "ZXY"))
sketch17.addGeometry(Part.LineSegment(App.Vector(0, 11.1, 0), App.Vector(0, 0, 0)), False)
sketch17.addGeometry(Part.LineSegment(App.Vector(0, 0, 0), App.Vector(1.7, 0, 0)), False)
sketch17.addGeometry(Part.LineSegment(App.Vector(1.7, 0, 0), App.Vector(1.7, 10.1, 0)), False)
sketch17.addGeometry(Part.LineSegment(App.Vector(1.7, 10.1, 0), App.Vector(0, 11.1, 0)), False)
sketch17.addConstraint(Sketcher.Constraint("Coincident", 0, 2, 1, 1))
sketch17.addConstraint(Sketcher.Constraint("Coincident", 1, 2, 2, 1))
sketch17.addConstraint(Sketcher.Constraint("Coincident", 2, 2, 3, 1))
sketch17.addConstraint(Sketcher.Constraint("Coincident", 3, 2, 0, 1))
sketch17.addConstraint(Sketcher.Constraint("Vertical", 0))
sketch17.addConstraint(Sketcher.Constraint("Horizontal", 1))
sketch17.addConstraint(Sketcher.Constraint("Vertical", 2))
sketch17.addConstraint(Sketcher.Constraint("Coincident", 0, 2, -1, 1))
sketch17.addConstraint(Sketcher.Constraint("Angle", 3, Q("149 deg")))
sketch17.addConstraint(Sketcher.Constraint("DistanceY", 2, 1, 2, 2, 10.1))
sketch17.addConstraint(Sketcher.Constraint("DistanceX", 1, 1, 1, 2, 1.65))
groove7 = body.newObject("PartDesign::Groove", "Groove006")
groove7.Profile = sketch17
groove7.ReferenceAxis = (sketch17, ["V_Axis"])
groove7.Angle = 360
doc.recompute()

chamfer2 = body.newObject("PartDesign::Chamfer", "Chamfer001")
chamfer2.Base = (groove7, edges_at(groove7, [(-125, 30, 0), (-115, 0, 0), (-125, 40, 0)]))
chamfer2.Size = 1

doc.recompute()
